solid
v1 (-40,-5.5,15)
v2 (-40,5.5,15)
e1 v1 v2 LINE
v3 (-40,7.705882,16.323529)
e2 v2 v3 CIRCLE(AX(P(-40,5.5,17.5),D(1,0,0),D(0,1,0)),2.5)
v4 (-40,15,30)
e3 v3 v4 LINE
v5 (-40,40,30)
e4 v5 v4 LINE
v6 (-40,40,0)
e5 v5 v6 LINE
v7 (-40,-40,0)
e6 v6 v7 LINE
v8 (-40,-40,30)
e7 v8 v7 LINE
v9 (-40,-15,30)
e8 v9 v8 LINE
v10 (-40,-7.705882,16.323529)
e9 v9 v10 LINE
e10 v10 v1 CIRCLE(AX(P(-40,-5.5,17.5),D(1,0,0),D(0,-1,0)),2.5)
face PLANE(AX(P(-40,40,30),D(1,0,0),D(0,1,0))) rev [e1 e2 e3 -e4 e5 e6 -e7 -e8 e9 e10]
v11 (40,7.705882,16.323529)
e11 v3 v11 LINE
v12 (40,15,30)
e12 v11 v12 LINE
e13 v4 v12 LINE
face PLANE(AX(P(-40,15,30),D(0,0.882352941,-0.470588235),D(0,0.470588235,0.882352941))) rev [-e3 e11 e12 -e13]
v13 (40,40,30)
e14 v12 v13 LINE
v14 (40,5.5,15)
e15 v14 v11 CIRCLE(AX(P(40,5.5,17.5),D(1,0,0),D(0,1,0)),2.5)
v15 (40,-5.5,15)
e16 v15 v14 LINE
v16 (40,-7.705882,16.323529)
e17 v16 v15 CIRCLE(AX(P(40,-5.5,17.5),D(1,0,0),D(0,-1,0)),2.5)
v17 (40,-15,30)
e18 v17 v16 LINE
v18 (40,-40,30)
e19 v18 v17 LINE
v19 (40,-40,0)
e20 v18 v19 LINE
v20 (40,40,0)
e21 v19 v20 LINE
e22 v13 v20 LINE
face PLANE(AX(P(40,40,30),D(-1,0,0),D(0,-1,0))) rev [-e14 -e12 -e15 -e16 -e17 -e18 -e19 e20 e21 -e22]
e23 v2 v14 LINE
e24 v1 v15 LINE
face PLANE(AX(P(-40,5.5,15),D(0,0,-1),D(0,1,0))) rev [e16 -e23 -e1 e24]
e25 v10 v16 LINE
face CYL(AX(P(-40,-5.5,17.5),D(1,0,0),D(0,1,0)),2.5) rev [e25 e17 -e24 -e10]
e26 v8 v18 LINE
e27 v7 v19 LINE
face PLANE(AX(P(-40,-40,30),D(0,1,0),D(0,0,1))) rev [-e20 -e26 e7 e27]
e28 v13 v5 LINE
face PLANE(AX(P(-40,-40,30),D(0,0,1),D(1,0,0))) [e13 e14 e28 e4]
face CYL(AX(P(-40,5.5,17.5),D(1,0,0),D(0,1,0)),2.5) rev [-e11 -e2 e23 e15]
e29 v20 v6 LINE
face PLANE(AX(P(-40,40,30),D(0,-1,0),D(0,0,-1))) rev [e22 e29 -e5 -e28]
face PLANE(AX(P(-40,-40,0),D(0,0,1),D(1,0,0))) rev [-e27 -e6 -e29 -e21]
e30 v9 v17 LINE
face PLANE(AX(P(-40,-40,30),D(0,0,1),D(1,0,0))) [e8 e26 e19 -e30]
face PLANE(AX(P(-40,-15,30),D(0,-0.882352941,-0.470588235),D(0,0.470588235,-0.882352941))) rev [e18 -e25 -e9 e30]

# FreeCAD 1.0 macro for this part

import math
import FreeCAD as App
import Part
import Sketcher

V = App.Vector
Q = App.Units.Quantity

doc = App.newDocument("Part")
body = doc.addObject("PartDesign::Body", "Body")

# Sketch on XY plane
sketch1 = body.newObject("Sketcher::SketchObject", "Sketch")
sketch1.AttachmentSupport = (doc.getObject("XY_Plane"), [""])
sketch1.MapMode = "FlatFace"
sketch1.addGeometry(Part.LineSegment(V(-40, 40, 0), V(-40, -40, 0)), False)
sketch1.addGeometry(Part.LineSegment(V(-40, -40, 0), V(40, -40, 0)), False)
sketch1.addGeometry(Part.LineSegment(V(40, -40, 0), V(40, 40, 0)), False)
sketch1.addGeometry(Part.LineSegment(V(40, 40, 0), V(-40, 40, 0)), False)
sketch1.addConstraint(Sketcher.Constraint("Coincident", 0, 2, 1, 1))
sketch1.addConstraint(Sketcher.Constraint("Coincident", 1, 2, 2, 1))
sketch1.addConstraint(Sketcher.Constraint("Coincident", 2, 2, 3, 1))
sketch1.addConstraint(Sketcher.Constraint("Coincident", 3, 2, 0, 1))
sketch1.addConstraint(Sketcher.Constraint("Vertical", 0))
sketch1.addConstraint(Sketcher.Constraint("Horizontal", 1))
sketch1.addConstraint(Sketcher.Constraint("Vertical", 2))
sketch1.addConstraint(Sketcher.Constraint("Horizontal", 3))
sketch1.addConstraint(Sketcher.Constraint("Symmetric", 0, 2, 2, 2, -1, 1))
sketch1.addConstraint(Sketcher.Constraint("Equal", 3, 0))
sketch1.addConstraint(Sketcher.Constraint("DistanceX", 1, 1, 1, 2, Q("80 mm")))
pad1 = body.newObject("PartDesign::Pad", "Pad")
pad1.Profile = sketch1
pad1.Length = 30

# Sketch on YZ plane
sketch2 = body.newObject("Sketcher::SketchObject", "Sketch001")
sketch2.AttachmentSupport = (doc.getObject("YZ_Plane"), [""])
sketch2.MapMode = "FlatFace"
sketch2.AttachmentOffset = App.Placement(V(0, 0, 40), App.Rotation())
sketch2.addGeometry(Part.LineSegment(V(7.705882, 16.323529, 0), V(15, 30, 0)), False)
sketch2.addGeometry(Part.LineSegment(V(15, 30, 0), V(-15, 30, 0)), False)
sketch2.addGeometry(Part.LineSegment(V(-15, 30, 0), V(-7.705882, 16.323529, 0)), False)
sketch2.addGeometry(Part.ArcOfCircle(Part.Circle(V(-5.5, 17.5, 0), V(0, 0, 1), 2.5), math.radians(-151.927513), math.radians(-90)), False)
sketch2.addGeometry(Part.LineSegment(V(-5.5, 15, 0), V(5.5, 15, 0)), False)
sketch2.addGeometry(Part.ArcOfCircle(Part.Circle(V(5.5, 17.5, 0), V(0, 0, 1), 2.5), math.radians(-90), math.radians(-28.072487)), False)
sketch2.addConstraint(Sketcher.Constraint("Coincident", 0, 2, 1, 1))
sketch2.addConstraint(Sketcher.Constraint("Coincident", 1, 2, 2, 1))
sketch2.addConstraint(Sketcher.Constraint("Tangent", 2, 2, 3, 1))
sketch2.addConstraint(Sketcher.Constraint("Tangent", 3, 2, 4, 1))
sketch2.addConstraint(Sketcher.Constraint("Tangent", 4, 2, 5, 1))
sketch2.addConstraint(Sketcher.Constraint("Tangent", 5, 2, 0, 1))
sketch2.addConstraint(Sketcher.Constraint("Horizontal", 1))
sketch2.addConstraint(Sketcher.Constraint("Horizontal", 4))
sketch2.addConstraint(Sketcher.Constraint("Equal", 3, 5))
sketch2.addConstraint(Sketcher.Constraint("Symmetric", 2, 2, 5, 2, -2))
sketch2.addConstraint(Sketcher.Constraint("Radius", 3, Q("2.5 mm")))
sketch2.addConstraint(Sketcher.Constraint("DistanceX", 1, 2, 1, 1, Q("30 mm")))
sketch2.addConstraint(Sketcher.Constraint("DistanceX", 4, 1, 4, 2, Q("11 mm")))
sketch2.addConstraint(Sketcher.Constraint("DistanceY", -1, 1, 0, 2, Q("30 mm")))
sketch2.addConstraint(Sketcher.Constraint("DistanceY", -1, 1, 3, 2, Q("15 mm")))
pocket1 = body.newObject("PartDesign::Pocket", "Pocket")
pocket1.Profile = sketch2
pocket1.Type = "ThroughAll"

doc.recompute()
